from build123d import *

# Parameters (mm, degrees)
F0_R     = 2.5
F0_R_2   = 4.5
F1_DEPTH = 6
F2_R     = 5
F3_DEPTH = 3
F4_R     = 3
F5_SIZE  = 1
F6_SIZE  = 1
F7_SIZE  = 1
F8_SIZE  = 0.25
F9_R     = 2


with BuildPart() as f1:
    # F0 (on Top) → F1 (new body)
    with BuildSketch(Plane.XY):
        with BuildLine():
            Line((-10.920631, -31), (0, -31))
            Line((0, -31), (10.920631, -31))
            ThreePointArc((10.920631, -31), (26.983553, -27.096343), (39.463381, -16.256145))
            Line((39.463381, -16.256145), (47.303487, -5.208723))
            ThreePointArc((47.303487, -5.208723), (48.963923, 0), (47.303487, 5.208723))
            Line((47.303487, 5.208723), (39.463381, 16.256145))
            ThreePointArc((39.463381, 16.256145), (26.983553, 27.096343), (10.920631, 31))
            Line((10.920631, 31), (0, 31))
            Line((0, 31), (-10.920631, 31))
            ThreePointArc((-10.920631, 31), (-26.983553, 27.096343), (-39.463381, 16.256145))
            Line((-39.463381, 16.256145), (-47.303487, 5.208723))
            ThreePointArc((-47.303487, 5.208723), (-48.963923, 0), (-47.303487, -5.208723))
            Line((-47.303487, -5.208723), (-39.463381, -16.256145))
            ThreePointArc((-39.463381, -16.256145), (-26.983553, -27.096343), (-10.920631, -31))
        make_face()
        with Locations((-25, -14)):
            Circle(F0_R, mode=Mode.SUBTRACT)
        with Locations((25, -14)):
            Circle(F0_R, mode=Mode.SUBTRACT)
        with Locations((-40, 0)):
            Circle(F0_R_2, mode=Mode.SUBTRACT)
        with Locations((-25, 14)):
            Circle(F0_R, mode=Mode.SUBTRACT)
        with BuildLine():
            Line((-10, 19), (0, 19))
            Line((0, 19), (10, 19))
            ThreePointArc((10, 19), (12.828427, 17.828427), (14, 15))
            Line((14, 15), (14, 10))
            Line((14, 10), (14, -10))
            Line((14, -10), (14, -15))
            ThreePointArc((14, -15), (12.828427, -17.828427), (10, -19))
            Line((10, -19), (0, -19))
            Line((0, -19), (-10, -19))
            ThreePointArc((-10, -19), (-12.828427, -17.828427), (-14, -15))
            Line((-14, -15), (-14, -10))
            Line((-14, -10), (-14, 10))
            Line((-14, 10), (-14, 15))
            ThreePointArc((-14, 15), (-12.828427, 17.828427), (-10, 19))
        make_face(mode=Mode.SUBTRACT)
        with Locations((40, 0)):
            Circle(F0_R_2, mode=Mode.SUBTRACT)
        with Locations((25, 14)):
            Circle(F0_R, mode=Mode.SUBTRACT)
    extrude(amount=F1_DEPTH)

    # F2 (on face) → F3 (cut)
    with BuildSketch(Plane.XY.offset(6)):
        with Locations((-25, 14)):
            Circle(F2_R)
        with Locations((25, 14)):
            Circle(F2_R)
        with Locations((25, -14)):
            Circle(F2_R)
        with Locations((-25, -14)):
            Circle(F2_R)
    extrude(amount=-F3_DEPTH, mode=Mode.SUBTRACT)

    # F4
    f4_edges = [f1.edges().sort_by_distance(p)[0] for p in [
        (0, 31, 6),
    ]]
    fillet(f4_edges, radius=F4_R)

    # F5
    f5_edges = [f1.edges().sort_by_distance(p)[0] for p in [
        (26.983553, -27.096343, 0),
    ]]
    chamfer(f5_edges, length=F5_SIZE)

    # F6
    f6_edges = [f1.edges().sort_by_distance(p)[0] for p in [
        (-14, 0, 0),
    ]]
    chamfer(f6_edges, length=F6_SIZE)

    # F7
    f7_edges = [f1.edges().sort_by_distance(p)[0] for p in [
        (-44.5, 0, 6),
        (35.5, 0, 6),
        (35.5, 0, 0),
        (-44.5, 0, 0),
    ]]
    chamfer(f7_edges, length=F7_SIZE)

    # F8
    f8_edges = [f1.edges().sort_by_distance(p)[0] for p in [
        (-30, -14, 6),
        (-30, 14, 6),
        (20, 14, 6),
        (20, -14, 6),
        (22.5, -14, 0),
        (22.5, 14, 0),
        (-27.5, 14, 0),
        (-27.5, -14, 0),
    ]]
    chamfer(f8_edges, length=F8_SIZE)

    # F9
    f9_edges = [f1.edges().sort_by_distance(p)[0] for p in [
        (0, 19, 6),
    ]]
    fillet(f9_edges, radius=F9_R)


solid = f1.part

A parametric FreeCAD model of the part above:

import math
import FreeCAD as App
import Part
import Sketcher

V = App.Vector
Q = App.Units.Quantity


def edges_at(feature, points):
    """Names of the edges that pass closest to the given points."""
    edges = feature.Shape.Edges
    near = lambda p: min(range(len(edges)), key=lambda i: edges[i].distToShape(Part.Vertex(*p))[0])
    return sorted({f"Edge{near(p) + 1}" for p in points})

doc = App.newDocument("Part")
body = doc.addObject("PartDesign::Body", "Body")

sketch1 = body.newObject("Sketcher::SketchObject", "Sketch")
sketch1.AttachmentSupport = (doc.getObject("XY_Plane"), [""])
sketch1.MapMode = "FlatFace"
sketch1.addGeometry([
    Part.LineSegment(V(-10.9, -31, 0), V(10.9, -31, 0)),
    Part.ArcOfCircle(Part.Circle(V(10.9, 4, 0), V(0, 0, 1), 35), math.radians(-90), math.radians(-35)),
    Part.LineSegment(V(39.5, -16.3, 0), V(47.3, -5.2, 0)),
    Part.ArcOfCircle(Part.Circle(V(40, 0, 0), V(0, 0, 1), 9), math.radians(-35), math.radians(35)),
    Part.LineSegment(V(47.3, 5.2, 0), V(39.5, 16.3, 0)),
    Part.ArcOfCircle(Part.Circle(V(10.9, -4, 0), V(0, 0, 1), 35), math.radians(35), math.radians(90)),
    Part.LineSegment(V(10.9, 31, 0), V(-10.9, 31, 0)),
    Part.ArcOfCircle(Part.Circle(V(-10.9, -4, 0), V(0, 0, 1), 35), math.radians(90), math.radians(145)),
    Part.LineSegment(V(-39.5, 16.3, 0), V(-47.3, 5.2, 0)),
    Part.ArcOfCircle(Part.Circle(V(-40, 0, 0), V(0, 0, 1), 9), math.radians(145), math.radians(215)),
    Part.LineSegment(V(-47.3, -5.2, 0), V(-39.5, -16.3, 0)),
    Part.ArcOfCircle(Part.Circle(V(-10.9, 4, 0), V(0, 0, 1), 35), math.radians(-145), math.radians(-90)),
    Part.Circle(V(-25, -14, 0), V(0, 0, 1), 2.5),
    Part.Circle(V(25, -14, 0), V(0, 0, 1), 2.5),
    Part.Circle(V(-40, 0, 0), V(0, 0, 1), 4.5),
    Part.Circle(V(-25, 14, 0), V(0, 0, 1), 2.5),
    Part.ArcOfCircle(Part.Circle(V(-10, 15, 0), V(0, 0, 1), 4), math.radians(90), math.radians(180)),
    Part.LineSegment(V(-10, 19, 0), V(10, 19, 0)),
    Part.ArcOfCircle(Part.Circle(V(10, 15, 0), V(0, 0, 1), 4), math.radians(0), math.radians(90)),
    Part.LineSegment(V(14, 15, 0), V(14, -15, 0)),
    Part.ArcOfCircle(Part.Circle(V(10, -15, 0), V(0, 0, 1), 4), math.radians(-90), math.radians(0)),
    Part.LineSegment(V(10, -19, 0), V(-10, -19, 0)),
    Part.ArcOfCircle(Part.Circle(V(-10, -15, 0), V(0, 0, 1), 4), math.radians(-180), math.radians(-90)),
    Part.LineSegment(V(-14, -15, 0), V(-14, 15, 0)),
    Part.Circle(V(40, 0, 0), V(0, 0, 1), 4.5),
    Part.Circle(V(25, 14, 0), V(0, 0, 1), 2.5),
], False)
sketch1.addConstraint([
    Sketcher.Constraint("Tangent", 0, 2, 1, 1),
    Sketcher.Constraint("Tangent", 1, 2, 2, 1),
    Sketcher.Constraint("Tangent", 2, 2, 3, 1),
    Sketcher.Constraint("Tangent", 3, 2, 4, 1),
    Sketcher.Constraint("Tangent", 4, 2, 5, 1),
    Sketcher.Constraint("Tangent", 5, 2, 6, 1),
    Sketcher.Constraint("Tangent", 6, 2, 7, 1),
    Sketcher.Constraint("Tangent", 7, 2, 8, 1),
    Sketcher.Constraint("Tangent", 8, 2, 9, 1),
    Sketcher.Constraint("Tangent", 9, 2, 10, 1),
    Sketcher.Constraint("Tangent", 10, 2, 11, 1),
    Sketcher.Constraint("Tangent", 11, 2, 0, 1),
    Sketcher.Constraint("Tangent", 16, 1, 17, 1),
    Sketcher.Constraint("Tangent", 17, 2, 18, 2),
    Sketcher.Constraint("Tangent", 18, 1, 19, 1),
    Sketcher.Constraint("Tangent", 19, 2, 20, 2),
    Sketcher.Constraint("Tangent", 20, 1, 21, 1),
    Sketcher.Constraint("Tangent", 21, 2, 22, 2),
    Sketcher.Constraint("Tangent", 22, 1, 23, 1),
    Sketcher.Constraint("Tangent", 23, 2, 16, 2),
    Sketcher.Constraint("Horizontal", 0),
    Sketcher.Constraint("Horizontal", 6),
    Sketcher.Constraint("Horizontal", 17),
    Sketcher.Constraint("Vertical", 19),
    Sketcher.Constraint("Horizontal", 21),
    Sketcher.Constraint("Vertical", 23),
    Sketcher.Constraint("Equal", 1, 5),
    Sketcher.Constraint("Equal", 5, 7),
    Sketcher.Constraint("Equal", 3, 9),
    Sketcher.Constraint("Equal", 7, 11),
    Sketcher.Constraint("Equal", 12, 13),
    Sketcher.Constraint("Equal", 13, 15),
    Sketcher.Constraint("Equal", 16, 18),
    Sketcher.Constraint("Equal", 18, 20),
    Sketcher.Constraint("Equal", 20, 22),
    Sketcher.Constraint("Equal", 14, 24),
    Sketcher.Constraint("Equal", 15, 25),
    Sketcher.Constraint("Symmetric", 1, 3, 7, 3, -1, 1),
    Sketcher.Constraint("Symmetric", 3, 3, 9, 3, -1, 1),
    Sketcher.Constraint("Symmetric", 13, 3, 15, 3, -1, 1),
    Sketcher.Constraint("Symmetric", 16, 3, 20, 3, -1, 1),
    Sketcher.Constraint("Symmetric", 14, 3, 24, 3, -1, 1),
    Sketcher.Constraint("Symmetric", 12, 3, 25, 3, -1, 1),
    Sketcher.Constraint("Symmetric", 12, 3, 13, 3, -2),
    Sketcher.Constraint("Symmetric", 4, 2, 7, 2, -2),
    Sketcher.Constraint("PointOnObject", 14, 3, -1),
    Sketcher.Constraint("Parallel", 4, 10),
    Sketcher.Constraint("Diameter", 12, Q("5 mm")),
    Sketcher.Constraint("Diameter", 14, Q("9 mm")),
    Sketcher.Constraint("Radius", 3, Q("8.999998 mm")),
    Sketcher.Constraint("Radius", 16, Q("4 mm")),
    Sketcher.Constraint("DistanceX", 17, 1, 17, 2, Q("20 mm")),
    Sketcher.Constraint("DistanceY", 19, 2, 19, 1, Q("30 mm")),
    Sketcher.Constraint("DistanceX", 12, 3, -1, 1, Q("25 mm")),
    Sketcher.Constraint("DistanceY", 12, 3, -1, 1, Q("14 mm")),
    Sketcher.Constraint("DistanceX", 14, 3, -1, 1, Q("40 mm")),
    Sketcher.Constraint("DistanceY", 0, 2, -1, 1, Q("31 mm")),
    Sketcher.Constraint("DistanceY", 11, 3, 16, 3, Q("11.000002 mm")),
    Sketcher.Constraint("Distance", 2, Q("13.546689 mm")),
    Sketcher.Constraint("DistanceX", 0, 1, 0, 2, Q("21.841262 mm")),
])
pad1 = body.newObject("PartDesign::Pad", "Pad")
pad1.Profile = sketch1
pad1.Length = 6

sketch2 = body.newObject("Sketcher::SketchObject", "Sketch001")
sketch2.AttachmentSupport = (doc.getObject("XY_Plane"), [""])
sketch2.MapMode = "FlatFace"
sketch2.AttachmentOffset = App.Placement(V(0, 0, 6), App.Rotation())
sketch2.addGeometry([
    Part.Circle(V(-25, 14, 0), V(0, 0, 1), 5),
    Part.Circle(V(25, 14, 0), V(0, 0, 1), 5),
    Part.Circle(V(25, -14, 0), V(0, 0, 1), 5),
    Part.Circle(V(-25, -14, 0), V(0, 0, 1), 5),
], False)
sketch2.addConstraint([
    Sketcher.Constraint("Equal", 0, 1),
    Sketcher.Constraint("Equal", 1, 2),
    Sketcher.Constraint("Equal", 2, 3),
    Sketcher.Constraint("Symmetric", 0, 3, 2, 3, -1, 1),
    Sketcher.Constraint("Symmetric", 1, 3, 3, 3, -1, 1),
    Sketcher.Constraint("Symmetric", 0, 3, 1, 3, -2),
    Sketcher.Constraint("Diameter", 0, Q("10 mm")),
    Sketcher.Constraint("DistanceX", 0, 3, -1, 1, Q("25 mm")),
    Sketcher.Constraint("DistanceY", -1, 1, 0, 3, Q("14 mm")),
])
pocket1 = body.newObject("PartDesign::Pocket", "Pocket")
pocket1.Profile = sketch2
pocket1.Length = 3
doc.recompute()

fillet = body.newObject("PartDesign::Fillet", "Fillet")
fillet.Base = (pocket1, edges_at(pocket1, [(0, 31, 6)]))
fillet.Radius = 3
doc.recompute()

chamfer = body.newObject("PartDesign::Chamfer", "Chamfer")
chamfer.Base = (fillet, edges_at(fillet, [(26.984, -27.096, 0)]))
chamfer.Size = 1
doc.recompute()

chamfer2 = body.newObject("PartDesign::Chamfer", "Chamfer001")
chamfer2.Base = (chamfer, edges_at(chamfer, [(-14, 0, 0)]))
chamfer2.Size = 1
doc.recompute()

chamfer3 = body.newObject("PartDesign::Chamfer", "Chamfer002")
chamfer3.Base = (chamfer2, edges_at(chamfer2, [
    (-44.5, 0, 6),
    (35.5, 0, 6),
    (35.5, 0, 0),
    (-44.5, 0, 0),
]))
chamfer3.Size = 1
doc.recompute()

chamfer4 = body.newObject("PartDesign::Chamfer", "Chamfer003")
chamfer4.Base = (chamfer3, edges_at(chamfer3, [
    (-30, -14, 6),
    (-30, 14, 6),
    (20, 14, 6),
    (20, -14, 6),
    (22.5, -14, 0),
    (22.5, 14, 0),
    (-27.5, 14, 0),
    (-27.5, -14, 0),
]))
chamfer4.Size = 0.25
doc.recompute()

fillet2 = body.newObject("PartDesign::Fillet", "Fillet001")
fillet2.Base = (chamfer4, edges_at(chamfer4, [(0, 19, 6)]))
fillet2.Radius = 2

doc.recompute()
